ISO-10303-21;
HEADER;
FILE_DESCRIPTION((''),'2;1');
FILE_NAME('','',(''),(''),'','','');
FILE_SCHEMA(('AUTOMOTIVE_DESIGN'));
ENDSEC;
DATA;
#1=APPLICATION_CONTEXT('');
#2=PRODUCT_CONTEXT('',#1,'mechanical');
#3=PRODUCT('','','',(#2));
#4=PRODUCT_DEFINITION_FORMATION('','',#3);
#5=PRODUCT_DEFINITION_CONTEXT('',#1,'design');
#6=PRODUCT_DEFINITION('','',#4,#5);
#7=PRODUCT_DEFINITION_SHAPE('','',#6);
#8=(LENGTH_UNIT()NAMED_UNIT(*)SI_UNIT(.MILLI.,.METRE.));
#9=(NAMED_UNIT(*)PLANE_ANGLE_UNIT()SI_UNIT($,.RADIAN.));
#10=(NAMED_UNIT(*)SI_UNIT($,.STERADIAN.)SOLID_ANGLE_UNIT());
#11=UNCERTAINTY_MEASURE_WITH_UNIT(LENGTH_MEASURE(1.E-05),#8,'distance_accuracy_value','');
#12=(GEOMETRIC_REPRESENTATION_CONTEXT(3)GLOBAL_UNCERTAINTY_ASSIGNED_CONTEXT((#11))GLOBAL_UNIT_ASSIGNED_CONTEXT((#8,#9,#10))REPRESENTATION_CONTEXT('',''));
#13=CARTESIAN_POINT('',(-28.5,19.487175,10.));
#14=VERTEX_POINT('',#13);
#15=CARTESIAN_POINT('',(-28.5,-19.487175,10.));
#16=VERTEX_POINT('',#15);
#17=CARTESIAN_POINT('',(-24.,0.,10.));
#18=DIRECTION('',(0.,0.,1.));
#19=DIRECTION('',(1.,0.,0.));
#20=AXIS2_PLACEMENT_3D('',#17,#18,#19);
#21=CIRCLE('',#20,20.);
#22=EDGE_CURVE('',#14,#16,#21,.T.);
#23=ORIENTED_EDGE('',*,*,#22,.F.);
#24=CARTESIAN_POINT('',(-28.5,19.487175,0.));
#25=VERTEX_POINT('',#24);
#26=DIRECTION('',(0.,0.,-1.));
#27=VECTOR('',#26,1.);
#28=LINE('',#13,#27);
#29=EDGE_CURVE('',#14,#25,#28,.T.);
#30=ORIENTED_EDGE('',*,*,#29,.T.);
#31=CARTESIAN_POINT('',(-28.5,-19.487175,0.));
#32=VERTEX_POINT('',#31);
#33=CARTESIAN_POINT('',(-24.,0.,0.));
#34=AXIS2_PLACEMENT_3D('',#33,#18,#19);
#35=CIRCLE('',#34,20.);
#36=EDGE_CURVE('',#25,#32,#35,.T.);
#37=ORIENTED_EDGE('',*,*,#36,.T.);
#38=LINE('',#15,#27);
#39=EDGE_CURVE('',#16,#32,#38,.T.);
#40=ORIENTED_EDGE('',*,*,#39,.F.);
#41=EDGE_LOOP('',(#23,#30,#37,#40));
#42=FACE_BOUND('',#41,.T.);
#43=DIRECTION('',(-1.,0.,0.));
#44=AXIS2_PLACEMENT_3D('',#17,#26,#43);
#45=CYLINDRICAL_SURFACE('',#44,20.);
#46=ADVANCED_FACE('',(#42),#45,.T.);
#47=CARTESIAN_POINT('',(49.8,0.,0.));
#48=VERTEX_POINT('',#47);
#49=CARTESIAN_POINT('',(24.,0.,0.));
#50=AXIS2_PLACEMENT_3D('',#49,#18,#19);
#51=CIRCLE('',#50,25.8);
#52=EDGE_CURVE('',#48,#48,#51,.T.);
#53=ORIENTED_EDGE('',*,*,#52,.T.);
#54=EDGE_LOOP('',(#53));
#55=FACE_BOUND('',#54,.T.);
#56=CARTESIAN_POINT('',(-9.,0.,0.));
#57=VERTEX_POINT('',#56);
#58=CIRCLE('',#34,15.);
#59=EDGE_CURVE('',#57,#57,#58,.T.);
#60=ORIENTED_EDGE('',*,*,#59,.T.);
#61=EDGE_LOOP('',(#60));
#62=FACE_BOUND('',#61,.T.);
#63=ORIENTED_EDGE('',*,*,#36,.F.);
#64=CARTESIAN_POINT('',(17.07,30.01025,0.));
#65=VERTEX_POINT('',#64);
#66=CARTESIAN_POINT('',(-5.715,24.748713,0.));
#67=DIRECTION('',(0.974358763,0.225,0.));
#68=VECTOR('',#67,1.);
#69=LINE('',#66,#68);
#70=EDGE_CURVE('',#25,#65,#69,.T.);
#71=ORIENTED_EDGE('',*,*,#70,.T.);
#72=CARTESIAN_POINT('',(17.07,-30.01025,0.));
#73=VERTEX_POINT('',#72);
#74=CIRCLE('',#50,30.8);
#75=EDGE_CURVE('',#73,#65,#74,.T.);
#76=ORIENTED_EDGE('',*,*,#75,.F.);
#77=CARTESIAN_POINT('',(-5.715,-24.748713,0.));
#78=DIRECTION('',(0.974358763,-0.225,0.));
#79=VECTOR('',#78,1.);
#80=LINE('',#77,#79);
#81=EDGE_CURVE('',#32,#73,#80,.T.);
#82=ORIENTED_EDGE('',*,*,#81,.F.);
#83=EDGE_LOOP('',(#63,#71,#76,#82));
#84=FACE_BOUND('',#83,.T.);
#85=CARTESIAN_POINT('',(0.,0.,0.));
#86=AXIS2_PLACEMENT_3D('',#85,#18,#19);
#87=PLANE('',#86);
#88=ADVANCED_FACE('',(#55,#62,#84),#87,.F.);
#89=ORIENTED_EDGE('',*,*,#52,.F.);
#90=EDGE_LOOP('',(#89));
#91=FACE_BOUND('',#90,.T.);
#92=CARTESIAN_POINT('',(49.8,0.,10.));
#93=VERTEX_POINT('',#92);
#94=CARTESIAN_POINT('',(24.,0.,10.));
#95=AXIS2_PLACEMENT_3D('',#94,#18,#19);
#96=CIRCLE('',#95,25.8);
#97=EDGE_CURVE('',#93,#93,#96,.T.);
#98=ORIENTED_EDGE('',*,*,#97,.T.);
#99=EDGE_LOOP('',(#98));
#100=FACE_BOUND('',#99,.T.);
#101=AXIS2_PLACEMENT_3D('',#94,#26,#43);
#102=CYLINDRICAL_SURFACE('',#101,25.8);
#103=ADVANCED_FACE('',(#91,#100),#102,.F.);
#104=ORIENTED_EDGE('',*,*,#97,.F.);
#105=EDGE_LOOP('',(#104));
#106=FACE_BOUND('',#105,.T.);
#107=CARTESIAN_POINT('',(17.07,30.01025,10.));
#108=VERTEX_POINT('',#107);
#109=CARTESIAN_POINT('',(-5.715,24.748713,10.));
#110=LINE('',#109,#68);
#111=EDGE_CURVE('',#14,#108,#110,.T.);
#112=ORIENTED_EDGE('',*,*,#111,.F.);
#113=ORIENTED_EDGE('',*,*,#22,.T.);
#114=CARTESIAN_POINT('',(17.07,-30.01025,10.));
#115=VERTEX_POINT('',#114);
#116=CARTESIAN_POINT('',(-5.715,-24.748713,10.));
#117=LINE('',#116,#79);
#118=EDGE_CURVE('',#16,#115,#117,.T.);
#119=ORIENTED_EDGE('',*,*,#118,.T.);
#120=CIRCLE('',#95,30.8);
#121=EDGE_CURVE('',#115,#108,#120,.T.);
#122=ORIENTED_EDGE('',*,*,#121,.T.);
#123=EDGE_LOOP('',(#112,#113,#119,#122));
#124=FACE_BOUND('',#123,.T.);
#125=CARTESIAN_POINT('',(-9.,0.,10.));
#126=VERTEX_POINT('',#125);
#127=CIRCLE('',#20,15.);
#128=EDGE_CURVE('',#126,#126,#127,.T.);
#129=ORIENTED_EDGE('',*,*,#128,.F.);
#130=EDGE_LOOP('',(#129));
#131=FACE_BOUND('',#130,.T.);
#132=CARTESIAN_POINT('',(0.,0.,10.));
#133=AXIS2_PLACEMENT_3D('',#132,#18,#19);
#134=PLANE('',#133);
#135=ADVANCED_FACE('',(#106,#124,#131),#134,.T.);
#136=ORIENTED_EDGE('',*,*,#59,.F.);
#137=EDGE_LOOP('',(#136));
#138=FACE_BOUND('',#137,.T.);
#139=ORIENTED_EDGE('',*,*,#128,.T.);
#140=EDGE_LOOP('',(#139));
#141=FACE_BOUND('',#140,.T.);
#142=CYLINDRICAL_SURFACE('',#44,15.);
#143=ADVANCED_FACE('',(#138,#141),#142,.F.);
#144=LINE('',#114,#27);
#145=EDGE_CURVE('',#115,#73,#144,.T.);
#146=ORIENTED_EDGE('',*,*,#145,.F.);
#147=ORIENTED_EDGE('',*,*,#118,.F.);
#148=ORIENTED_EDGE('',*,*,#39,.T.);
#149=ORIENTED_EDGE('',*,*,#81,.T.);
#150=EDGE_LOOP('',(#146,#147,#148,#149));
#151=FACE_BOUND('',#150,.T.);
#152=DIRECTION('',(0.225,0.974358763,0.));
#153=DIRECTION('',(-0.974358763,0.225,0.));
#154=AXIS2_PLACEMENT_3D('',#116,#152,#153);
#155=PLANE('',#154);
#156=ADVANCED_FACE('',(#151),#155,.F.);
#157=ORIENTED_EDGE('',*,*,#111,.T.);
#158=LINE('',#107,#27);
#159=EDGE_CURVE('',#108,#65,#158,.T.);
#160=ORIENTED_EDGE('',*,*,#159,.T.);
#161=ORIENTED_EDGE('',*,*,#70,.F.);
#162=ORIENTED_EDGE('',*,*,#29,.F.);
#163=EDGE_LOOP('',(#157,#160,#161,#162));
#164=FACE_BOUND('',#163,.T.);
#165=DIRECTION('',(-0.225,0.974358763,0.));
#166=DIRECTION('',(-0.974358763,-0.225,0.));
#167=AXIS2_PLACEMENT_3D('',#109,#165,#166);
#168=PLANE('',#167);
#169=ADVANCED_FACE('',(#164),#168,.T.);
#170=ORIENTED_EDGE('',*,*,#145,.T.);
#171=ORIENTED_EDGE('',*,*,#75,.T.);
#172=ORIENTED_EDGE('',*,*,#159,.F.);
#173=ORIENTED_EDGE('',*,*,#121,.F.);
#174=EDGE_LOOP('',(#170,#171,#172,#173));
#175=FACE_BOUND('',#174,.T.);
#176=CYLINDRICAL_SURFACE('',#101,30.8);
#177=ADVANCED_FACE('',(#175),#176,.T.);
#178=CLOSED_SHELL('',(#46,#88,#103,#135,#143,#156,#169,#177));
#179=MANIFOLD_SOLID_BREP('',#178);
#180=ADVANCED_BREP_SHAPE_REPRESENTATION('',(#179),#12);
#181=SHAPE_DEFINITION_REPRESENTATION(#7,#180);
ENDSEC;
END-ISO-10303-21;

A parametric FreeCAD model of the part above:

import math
import FreeCAD as App
import Part
import Sketcher
Q = App.Units.Quantity

doc = App.newDocument("Part")
params = doc.addObject("Spreadsheet::Sheet", "Params")
for row, (alias, value) in enumerate([
    ("sketch1_diameter", "30 mm"),
    ("sketch1_radius", "20 mm"),
    ("sketch1_diameter2", "51.6 mm"),
    ("sketch1_radius2", "30.8 mm"),
    ("pad1_length", "10 mm"),
], start=1):
    params.set(f"A{row}", alias)
    params.set(f"B{row}", "=" + value)
    params.setAlias(f"B{row}", alias)

body = doc.addObject("PartDesign::Body", "Body")

# Sketch on XY plane
sketch1 = body.newObject("Sketcher::SketchObject", "Sketch")
sketch1.AttachmentSupport = (doc.getObject("XY_Plane"), [""])
sketch1.MapMode = "FlatFace"
sketch1.addGeometry(Part.LineSegment(App.Vector(17, 30, 0), App.Vector(-28, 19, 0)), False)
sketch1.addGeometry(Part.ArcOfCircle(Part.Circle(App.Vector(-24, 0, 0), App.Vector(0, 0, 1), 20), math.radians(103), math.radians(257)), False)
sketch1.addGeometry(Part.LineSegment(App.Vector(-28, -19, 0), App.Vector(17, -30, 0)), False)
sketch1.addGeometry(Part.ArcOfCircle(Part.Circle(App.Vector(24, 0, 0), App.Vector(0, 0, 1), 31), math.radians(-103), math.radians(103)), False)
sketch1.addGeometry(Part.Circle(App.Vector(-24, 0, 0), App.Vector(0, 0, 1), 15), False)
sketch1.addGeometry(Part.Circle(App.Vector(24, 0, 0), App.Vector(0, 0, 1), 26), False)
sketch1.addConstraint(Sketcher.Constraint("Tangent", 0, 2, 1, 1))
sketch1.addConstraint(Sketcher.Constraint("Tangent", 1, 2, 2, 1))
sketch1.addConstraint(Sketcher.Constraint("Tangent", 2, 2, 3, 1))
sketch1.addConstraint(Sketcher.Constraint("Tangent", 3, 2, 0, 1))
sketch1.addConstraint(Sketcher.Constraint("Coincident", 4, 3, 1, 3))
sketch1.addConstraint(Sketcher.Constraint("Coincident", 5, 3, 3, 3))
sketch1.addConstraint(Sketcher.Constraint("Symmetric", 1, 3, 3, 3, -1, 1))
sketch1.addConstraint(Sketcher.Constraint("PointOnObject", 1, 3, -1))
sketch1.addConstraint(Sketcher.Constraint("Diameter", 4, Q("30 mm")))
sketch1.addConstraint(Sketcher.Constraint("Radius", 1, Q("20 mm")))
sketch1.addConstraint(Sketcher.Constraint("Diameter", 5, Q("51.6 mm")))
sketch1.addConstraint(Sketcher.Constraint("Radius", 3, Q("30.8 mm")))
sketch1.addConstraint(Sketcher.Constraint("DistanceX", 1, 3, -1, 1, Q("24 mm")))
sketch1.setExpression("Constraints[8]", "Params.sketch1_diameter")
sketch1.setExpression("Constraints[9]", "Params.sketch1_radius")
sketch1.setExpression("Constraints[10]", "Params.sketch1_diameter2")
sketch1.setExpression("Constraints[11]", "Params.sketch1_radius2")
pad1 = body.newObject("PartDesign::Pad", "Pad")
pad1.Profile = sketch1
pad1.setExpression("Length", "Params.pad1_length")

doc.recompute()
